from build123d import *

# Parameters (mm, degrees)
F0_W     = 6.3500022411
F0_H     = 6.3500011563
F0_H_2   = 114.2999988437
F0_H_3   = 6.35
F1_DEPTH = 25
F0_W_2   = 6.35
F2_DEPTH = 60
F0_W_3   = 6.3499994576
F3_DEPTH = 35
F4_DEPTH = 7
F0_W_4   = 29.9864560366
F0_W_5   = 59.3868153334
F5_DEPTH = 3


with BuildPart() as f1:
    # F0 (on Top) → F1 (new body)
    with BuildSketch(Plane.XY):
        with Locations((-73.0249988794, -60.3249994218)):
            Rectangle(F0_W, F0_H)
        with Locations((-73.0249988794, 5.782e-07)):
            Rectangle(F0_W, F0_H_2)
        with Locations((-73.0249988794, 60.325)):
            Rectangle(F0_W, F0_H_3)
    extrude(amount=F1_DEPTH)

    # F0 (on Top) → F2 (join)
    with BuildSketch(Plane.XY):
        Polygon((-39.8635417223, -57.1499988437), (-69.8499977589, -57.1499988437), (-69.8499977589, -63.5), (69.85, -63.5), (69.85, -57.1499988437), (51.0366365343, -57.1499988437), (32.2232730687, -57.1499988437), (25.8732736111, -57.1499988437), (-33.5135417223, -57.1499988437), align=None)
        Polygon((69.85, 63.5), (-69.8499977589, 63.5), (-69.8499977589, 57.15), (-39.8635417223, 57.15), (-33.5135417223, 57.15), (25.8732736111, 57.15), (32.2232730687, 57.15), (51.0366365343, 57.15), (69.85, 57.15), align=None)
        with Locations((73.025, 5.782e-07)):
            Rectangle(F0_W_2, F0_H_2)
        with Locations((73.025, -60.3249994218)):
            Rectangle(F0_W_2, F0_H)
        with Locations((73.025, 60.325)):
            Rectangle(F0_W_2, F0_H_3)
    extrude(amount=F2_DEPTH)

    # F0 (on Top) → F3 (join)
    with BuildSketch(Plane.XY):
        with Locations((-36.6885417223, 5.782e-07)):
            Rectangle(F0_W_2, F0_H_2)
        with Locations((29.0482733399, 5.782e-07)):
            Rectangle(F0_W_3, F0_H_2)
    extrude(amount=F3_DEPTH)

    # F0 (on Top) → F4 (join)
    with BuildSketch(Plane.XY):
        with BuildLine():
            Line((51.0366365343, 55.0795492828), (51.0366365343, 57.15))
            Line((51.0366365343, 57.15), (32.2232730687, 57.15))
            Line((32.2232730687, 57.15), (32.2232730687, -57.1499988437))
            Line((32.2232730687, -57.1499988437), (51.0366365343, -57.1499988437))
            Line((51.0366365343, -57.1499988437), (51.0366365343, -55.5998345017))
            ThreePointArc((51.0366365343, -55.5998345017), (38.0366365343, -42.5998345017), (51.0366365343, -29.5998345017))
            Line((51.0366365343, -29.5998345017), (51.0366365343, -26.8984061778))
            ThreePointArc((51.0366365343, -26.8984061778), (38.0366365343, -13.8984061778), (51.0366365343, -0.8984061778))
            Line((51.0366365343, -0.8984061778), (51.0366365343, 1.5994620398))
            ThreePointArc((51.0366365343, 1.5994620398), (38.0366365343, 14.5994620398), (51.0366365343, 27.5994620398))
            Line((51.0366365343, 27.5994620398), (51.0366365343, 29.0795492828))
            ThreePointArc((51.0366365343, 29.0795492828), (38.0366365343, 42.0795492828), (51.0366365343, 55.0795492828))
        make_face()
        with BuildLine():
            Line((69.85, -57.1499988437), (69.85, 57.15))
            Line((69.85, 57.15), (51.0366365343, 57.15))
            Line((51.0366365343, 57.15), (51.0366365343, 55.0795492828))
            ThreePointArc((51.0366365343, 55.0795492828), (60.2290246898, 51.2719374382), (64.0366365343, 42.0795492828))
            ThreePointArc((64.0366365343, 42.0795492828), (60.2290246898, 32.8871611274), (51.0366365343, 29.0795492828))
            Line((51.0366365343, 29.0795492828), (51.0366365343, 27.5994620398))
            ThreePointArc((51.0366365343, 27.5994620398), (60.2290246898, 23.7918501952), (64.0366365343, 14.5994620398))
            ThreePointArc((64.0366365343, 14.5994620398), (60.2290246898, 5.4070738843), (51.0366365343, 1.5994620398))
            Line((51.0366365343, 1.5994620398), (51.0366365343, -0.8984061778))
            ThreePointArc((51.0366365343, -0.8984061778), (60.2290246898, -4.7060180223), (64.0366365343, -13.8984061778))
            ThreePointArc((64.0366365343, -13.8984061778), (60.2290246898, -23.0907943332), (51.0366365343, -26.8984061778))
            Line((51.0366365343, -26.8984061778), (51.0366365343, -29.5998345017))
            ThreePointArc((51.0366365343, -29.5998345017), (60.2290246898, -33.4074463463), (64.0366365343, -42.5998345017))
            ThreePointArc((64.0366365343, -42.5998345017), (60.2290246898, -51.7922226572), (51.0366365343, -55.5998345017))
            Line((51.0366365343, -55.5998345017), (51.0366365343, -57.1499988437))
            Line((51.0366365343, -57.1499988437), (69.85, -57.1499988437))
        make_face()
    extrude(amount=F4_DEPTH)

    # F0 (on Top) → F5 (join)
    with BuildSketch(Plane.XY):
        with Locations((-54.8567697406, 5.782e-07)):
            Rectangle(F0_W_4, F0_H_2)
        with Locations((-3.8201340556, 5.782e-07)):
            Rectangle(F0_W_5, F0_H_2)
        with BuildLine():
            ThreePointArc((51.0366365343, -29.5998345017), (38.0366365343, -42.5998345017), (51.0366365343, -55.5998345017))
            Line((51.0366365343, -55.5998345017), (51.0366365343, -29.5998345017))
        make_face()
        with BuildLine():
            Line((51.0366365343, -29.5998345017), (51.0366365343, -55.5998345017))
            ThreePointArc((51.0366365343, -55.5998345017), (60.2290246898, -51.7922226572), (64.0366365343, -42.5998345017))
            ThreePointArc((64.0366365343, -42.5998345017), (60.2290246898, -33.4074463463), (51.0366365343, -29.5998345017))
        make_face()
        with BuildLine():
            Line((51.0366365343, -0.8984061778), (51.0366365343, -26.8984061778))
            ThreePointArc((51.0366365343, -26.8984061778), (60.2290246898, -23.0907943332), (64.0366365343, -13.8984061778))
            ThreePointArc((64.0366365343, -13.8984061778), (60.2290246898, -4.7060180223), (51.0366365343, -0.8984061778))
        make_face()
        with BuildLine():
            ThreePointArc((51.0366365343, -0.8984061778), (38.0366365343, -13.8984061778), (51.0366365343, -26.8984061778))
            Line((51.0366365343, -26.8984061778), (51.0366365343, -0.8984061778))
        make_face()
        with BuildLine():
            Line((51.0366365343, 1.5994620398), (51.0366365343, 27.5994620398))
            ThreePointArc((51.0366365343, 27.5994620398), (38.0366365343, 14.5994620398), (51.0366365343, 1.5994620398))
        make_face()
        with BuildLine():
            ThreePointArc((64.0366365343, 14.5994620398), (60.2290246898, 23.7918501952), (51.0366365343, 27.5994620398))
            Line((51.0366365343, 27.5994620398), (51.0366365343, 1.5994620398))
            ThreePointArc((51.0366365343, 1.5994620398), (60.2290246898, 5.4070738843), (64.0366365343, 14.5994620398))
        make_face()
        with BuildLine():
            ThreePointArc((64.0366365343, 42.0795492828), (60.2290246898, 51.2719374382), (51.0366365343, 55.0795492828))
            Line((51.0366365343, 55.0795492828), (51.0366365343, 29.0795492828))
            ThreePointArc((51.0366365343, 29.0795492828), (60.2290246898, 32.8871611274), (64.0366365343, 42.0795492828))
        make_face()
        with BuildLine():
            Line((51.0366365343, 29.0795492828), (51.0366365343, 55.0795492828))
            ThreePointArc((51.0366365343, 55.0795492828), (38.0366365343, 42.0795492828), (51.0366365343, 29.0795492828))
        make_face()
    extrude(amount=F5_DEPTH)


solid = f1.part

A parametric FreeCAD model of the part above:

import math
import FreeCAD as App
import Part
import Sketcher
from FreeCAD import Vector
Q = App.Units.Quantity

doc = App.newDocument("Part")
body = doc.addObject("PartDesign::Body", "Body")

sketch1 = body.newObject("Sketcher::SketchObject", "Sketch")
sketch1.AttachmentSupport = (doc.getObject("XY_Plane"), [""])
sketch1.MapMode = "FlatFace"
sketch1.addGeometry(Part.LineSegment(Vector(-76.2, -63.5, 0), Vector(-69.849998, -63.5, 0)), False)
sketch1.addGeometry(Part.LineSegment(Vector(-69.849998, -63.5, 0), Vector(-69.849998, 63.5, 0)), False)
sketch1.addGeometry(Part.LineSegment(Vector(-69.849998, 63.5, 0), Vector(-76.2, 63.5, 0)), False)
sketch1.addGeometry(Part.LineSegment(Vector(-76.2, 63.5, 0), Vector(-76.2, -63.5, 0)), False)
sketch1.addConstraint(Sketcher.Constraint("Coincident", 0, 2, 1, 1))
sketch1.addConstraint(Sketcher.Constraint("Coincident", 1, 2, 2, 1))
sketch1.addConstraint(Sketcher.Constraint("Coincident", 2, 2, 3, 1))
sketch1.addConstraint(Sketcher.Constraint("Coincident", 3, 2, 0, 1))
sketch1.addConstraint(Sketcher.Constraint("Horizontal", 0))
sketch1.addConstraint(Sketcher.Constraint("Vertical", 1))
sketch1.addConstraint(Sketcher.Constraint("Horizontal", 2))
sketch1.addConstraint(Sketcher.Constraint("Vertical", 3))
sketch1.addConstraint(Sketcher.Constraint("DistanceY", 1, 1, 1, 2, Q("5 in")))
sketch1.addConstraint(Sketcher.Constraint("DistanceX", 2, 2, -1, 1, Q("3 in")))
sketch1.addConstraint(Sketcher.Constraint("DistanceX", 0, 1, 0, 2, Q("0.2500001 in")))
sketch1.addConstraint(Sketcher.Constraint("DistanceY", 0, 2, -1, 1, Q("2.5 in")))
pad1 = body.newObject("PartDesign::Pad", "Pad")
pad1.Profile = sketch1
pad1.Length = 25

sketch2 = body.newObject("Sketcher::SketchObject", "Sketch001")
sketch2.AttachmentSupport = (doc.getObject("XY_Plane"), [""])
sketch2.MapMode = "FlatFace"
sketch2.addGeometry(Part.LineSegment(Vector(-69.849998, -57.149999, 0), Vector(-69.849998, -63.5, 0)), False)
sketch2.addGeometry(Part.LineSegment(Vector(-69.849998, -63.5, 0), Vector(76.2, -63.5, 0)), False)
sketch2.addGeometry(Part.LineSegment(Vector(76.2, -63.5, 0), Vector(76.2, 63.5, 0)), False)
sketch2.addGeometry(Part.LineSegment(Vector(76.2, 63.5, 0), Vector(-69.849998, 63.5, 0)), False)
sketch2.addGeometry(Part.LineSegment(Vector(-69.849998, 63.5, 0), Vector(-69.849998, 57.15, 0)), False)
sketch2.addGeometry(Part.LineSegment(Vector(-69.849998, 57.15, 0), Vector(69.85, 57.15, 0)), False)
sketch2.addGeometry(Part.LineSegment(Vector(69.85, 57.15, 0), Vector(69.85, -57.149999, 0)), False)
sketch2.addGeometry(Part.LineSegment(Vector(69.85, -57.149999, 0), Vector(-69.849998, -57.149999, 0)), False)
sketch2.addConstraint(Sketcher.Constraint("Coincident", 0, 2, 1, 1))
sketch2.addConstraint(Sketcher.Constraint("Coincident", 1, 2, 2, 1))
sketch2.addConstraint(Sketcher.Constraint("Coincident", 2, 2, 3, 1))
sketch2.addConstraint(Sketcher.Constraint("Coincident", 3, 2, 4, 1))
sketch2.addConstraint(Sketcher.Constraint("Coincident", 4, 2, 5, 1))
sketch2.addConstraint(Sketcher.Constraint("Coincident", 5, 2, 6, 1))
sketch2.addConstraint(Sketcher.Constraint("Coincident", 6, 2, 7, 1))
sketch2.addConstraint(Sketcher.Constraint("Coincident", 7, 2, 0, 1))
sketch2.addConstraint(Sketcher.Constraint("Vertical", 0))
sketch2.addConstraint(Sketcher.Constraint("Horizontal", 1))
sketch2.addConstraint(Sketcher.Constraint("Vertical", 2))
sketch2.addConstraint(Sketcher.Constraint("Horizontal", 3))
sketch2.addConstraint(Sketcher.Constraint("Vertical", 4))
sketch2.addConstraint(Sketcher.Constraint("Horizontal", 5))
sketch2.addConstraint(Sketcher.Constraint("Vertical", 6))
sketch2.addConstraint(Sketcher.Constraint("Horizontal", 7))
sketch2.addConstraint(Sketcher.Constraint("Symmetric", 4, 2, 6, 2, -1, 1))
sketch2.addConstraint(Sketcher.Constraint("Symmetric", 0, 2, 3, 2, -1))
sketch2.addConstraint(Sketcher.Constraint("DistanceY", 2, 1, 2, 2, Q("5 in")))
sketch2.addConstraint(Sketcher.Constraint("DistanceX", 5, 1, 5, 2, Q("5.4999999 in")))
sketch2.addConstraint(Sketcher.Constraint("DistanceY", 6, 2, 6, 1, Q("4.5 in")))
sketch2.addConstraint(Sketcher.Constraint("DistanceX", -1, 1, 1, 2, Q("3 in")))
pad2 = body.newObject("PartDesign::Pad", "Pad001")
pad2.Profile = sketch2
pad2.Length = 60

sketch3 = body.newObject("Sketcher::SketchObject", "Sketch002")
sketch3.AttachmentSupport = (doc.getObject("XY_Plane"), [""])
sketch3.MapMode = "FlatFace"
sketch3.addGeometry(Part.LineSegment(Vector(-39.863542, 57.15, 0), Vector(-39.863542, -57.149999, 0)), False)
sketch3.addGeometry(Part.LineSegment(Vector(-39.863542, -57.149999, 0), Vector(-33.513542, -57.149999, 0)), False)
sketch3.addGeometry(Part.LineSegment(Vector(-33.513542, -57.149999, 0), Vector(-33.513542, 57.15, 0)), False)
sketch3.addGeometry(Part.LineSegment(Vector(-33.513542, 57.15, 0), Vector(-39.863542, 57.15, 0)), False)
sketch3.addGeometry(Part.LineSegment(Vector(25.873274, 57.15, 0), Vector(25.873274, -57.149999, 0)), False)
sketch3.addGeometry(Part.LineSegment(Vector(25.873274, -57.149999, 0), Vector(32.223273, -57.149999, 0)), False)
sketch3.addGeometry(Part.LineSegment(Vector(32.223273, -57.149999, 0), Vector(32.223273, 57.15, 0)), False)
sketch3.addGeometry(Part.LineSegment(Vector(32.223273, 57.15, 0), Vector(25.873274, 57.15, 0)), False)
sketch3.addConstraint(Sketcher.Constraint("Coincident", 0, 2, 1, 1))
sketch3.addConstraint(Sketcher.Constraint("Coincident", 1, 2, 2, 1))
sketch3.addConstraint(Sketcher.Constraint("Coincident", 2, 2, 3, 1))
sketch3.addConstraint(Sketcher.Constraint("Coincident", 3, 2, 0, 1))
sketch3.addConstraint(Sketcher.Constraint("Coincident", 4, 2, 5, 1))
sketch3.addConstraint(Sketcher.Constraint("Coincident", 5, 2, 6, 1))
sketch3.addConstraint(Sketcher.Constraint("Coincident", 6, 2, 7, 1))
sketch3.addConstraint(Sketcher.Constraint("Coincident", 7, 2, 4, 1))
sketch3.addConstraint(Sketcher.Constraint("Vertical", 0))
sketch3.addConstraint(Sketcher.Constraint("Horizontal", 1))
sketch3.addConstraint(Sketcher.Constraint("Vertical", 2))
sketch3.addConstraint(Sketcher.Constraint("Horizontal", 3))
sketch3.addConstraint(Sketcher.Constraint("Vertical", 4))
sketch3.addConstraint(Sketcher.Constraint("Horizontal", 5))
sketch3.addConstraint(Sketcher.Constraint("Vertical", 6))
sketch3.addConstraint(Sketcher.Constraint("Horizontal", 7))
sketch3.addConstraint(Sketcher.Constraint("Horizontal", 1, 2, 4, 2))
sketch3.addConstraint(Sketcher.Constraint("Horizontal", 3, 2, 6, 2))
sketch3.addConstraint(Sketcher.Constraint("Equal", 3, 5))
sketch3.addConstraint(Sketcher.Constraint("DistanceY", 0, 2, 0, 1, Q("4.5 in")))
sketch3.addConstraint(Sketcher.Constraint("DistanceX", 1, 1, 1, 2, Q("0.25 in")))
sketch3.addConstraint(Sketcher.Constraint("DistanceY", 0, 2, -1, 1, Q("2.25 in")))
sketch3.addConstraint(Sketcher.Constraint("DistanceX", 0, 2, -1, 1, 39.863542))
sketch3.addConstraint(Sketcher.Constraint("DistanceX", -1, 1, 4, 2, 25.873274))
pad3 = body.newObject("PartDesign::Pad", "Pad002")
pad3.Profile = sketch3
pad3.Length = 35

sketch4 = body.newObject("Sketcher::SketchObject", "Sketch003")
sketch4.AttachmentSupport = (doc.getObject("XY_Plane"), [""])
sketch4.MapMode = "FlatFace"
sketch4.addGeometry(Part.LineSegment(Vector(32.223273, 57.15, 0), Vector(32.223273, -57.149999, 0)), False)
sketch4.addGeometry(Part.LineSegment(Vector(32.223273, -57.149999, 0), Vector(69.85, -57.149999, 0)), False)
sketch4.addGeometry(Part.LineSegment(Vector(69.85, -57.149999, 0), Vector(69.85, 57.15, 0)), False)
sketch4.addGeometry(Part.LineSegment(Vector(69.85, 57.15, 0), Vector(32.223273, 57.15, 0)), False)
sketch4.addGeometry(Part.ArcOfCircle(Part.Circle(Vector(51.036637, -42.599835, 0), Vector(0, 0, 1), 13), math.radians(90), math.radians(270)), False)
sketch4.addGeometry(Part.ArcOfCircle(Part.Circle(Vector(51.036637, -42.599835, 0), Vector(0, 0, 1), 13), math.radians(0), math.radians(90)), False)
sketch4.addGeometry(Part.ArcOfCircle(Part.Circle(Vector(51.036637, -42.599835, 0), Vector(0, 0, 1), 13), math.radians(-90), math.radians(0)), False)
sketch4.addGeometry(Part.ArcOfCircle(Part.Circle(Vector(51.036637, -13.898406, 0), Vector(0, 0, 1), 13), math.radians(90), math.radians(270)), False)
sketch4.addGeometry(Part.ArcOfCircle(Part.Circle(Vector(51.036637, -13.898406, 0), Vector(0, 0, 1), 13), math.radians(0), math.radians(90)), False)
sketch4.addGeometry(Part.ArcOfCircle(Part.Circle(Vector(51.036637, -13.898406, 0), Vector(0, 0, 1), 13), math.radians(-90), math.radians(0)), False)
sketch4.addGeometry(Part.ArcOfCircle(Part.Circle(Vector(51.036637, 14.599462, 0), Vector(0, 0, 1), 13), math.radians(90), math.radians(270)), False)
sketch4.addGeometry(Part.ArcOfCircle(Part.Circle(Vector(51.036637, 14.599462, 0), Vector(0, 0, 1), 13), math.radians(0), math.radians(90)), False)
sketch4.addGeometry(Part.ArcOfCircle(Part.Circle(Vector(51.036637, 14.599462, 0), Vector(0, 0, 1), 13), math.radians(-90), math.radians(0)), False)
sketch4.addGeometry(Part.ArcOfCircle(Part.Circle(Vector(51.036637, 42.079549, 0), Vector(0, 0, 1), 13), math.radians(90), math.radians(270)), False)
sketch4.addGeometry(Part.ArcOfCircle(Part.Circle(Vector(51.036637, 42.079549, 0), Vector(0, 0, 1), 13), math.radians(0), math.radians(90)), False)
sketch4.addGeometry(Part.ArcOfCircle(Part.Circle(Vector(51.036637, 42.079549, 0), Vector(0, 0, 1), 13), math.radians(-90), math.radians(0)), False)
sketch4.addConstraint(Sketcher.Constraint("Coincident", 0, 2, 1, 1))
sketch4.addConstraint(Sketcher.Constraint("Coincident", 1, 2, 2, 1))
sketch4.addConstraint(Sketcher.Constraint("Coincident", 2, 2, 3, 1))
sketch4.addConstraint(Sketcher.Constraint("Coincident", 3, 2, 0, 1))
sketch4.addConstraint(Sketcher.Constraint("Tangent", 4, 1, 5, 2))
sketch4.addConstraint(Sketcher.Constraint("Tangent", 5, 1, 6, 2))
sketch4.addConstraint(Sketcher.Constraint("Tangent", 6, 1, 4, 2))
sketch4.addConstraint(Sketcher.Constraint("Tangent", 7, 1, 8, 2))
sketch4.addConstraint(Sketcher.Constraint("Tangent", 8, 1, 9, 2))
sketch4.addConstraint(Sketcher.Constraint("Tangent", 9, 1, 7, 2))
sketch4.addConstraint(Sketcher.Constraint("Tangent", 10, 1, 11, 2))
sketch4.addConstraint(Sketcher.Constraint("Tangent", 11, 1, 12, 2))
sketch4.addConstraint(Sketcher.Constraint("Tangent", 12, 1, 10, 2))
sketch4.addConstraint(Sketcher.Constraint("Tangent", 13, 1, 14, 2))
sketch4.addConstraint(Sketcher.Constraint("Tangent", 14, 1, 15, 2))
sketch4.addConstraint(Sketcher.Constraint("Tangent", 15, 1, 13, 2))
sketch4.addConstraint(Sketcher.Constraint("Vertical", 0))
sketch4.addConstraint(Sketcher.Constraint("Horizontal", 1))
sketch4.addConstraint(Sketcher.Constraint("Vertical", 2))
sketch4.addConstraint(Sketcher.Constraint("Horizontal", 3))
sketch4.addConstraint(Sketcher.Constraint("Equal", 6, 7))
sketch4.addConstraint(Sketcher.Constraint("Equal", 9, 10))
sketch4.addConstraint(Sketcher.Constraint("Equal", 12, 13))
sketch4.addConstraint(Sketcher.Constraint("Horizontal", 6, 3, 5, 1))
sketch4.addConstraint(Sketcher.Constraint("Horizontal", 9, 3, 8, 1))
sketch4.addConstraint(Sketcher.Constraint("Horizontal", 12, 3, 11, 1))
sketch4.addConstraint(Sketcher.Constraint("Horizontal", 15, 3, 14, 1))
sketch4.addConstraint(Sketcher.Constraint("Vertical", 6, 3, 7, 3))
sketch4.addConstraint(Sketcher.Constraint("Vertical", 9, 3, 10, 3))
sketch4.addConstraint(Sketcher.Constraint("Vertical", 12, 3, 13, 3))
sketch4.addConstraint(Sketcher.Constraint("Vertical", 15, 3, 4, 1))
sketch4.addConstraint(Sketcher.Constraint("Vertical", 4, 1, 6, 1))
sketch4.addConstraint(Sketcher.Constraint("Vertical", 6, 1, 7, 1))
sketch4.addConstraint(Sketcher.Constraint("Vertical", 7, 1, 9, 1))
sketch4.addConstraint(Sketcher.Constraint("Vertical", 9, 1, 10, 1))
sketch4.addConstraint(Sketcher.Constraint("Vertical", 10, 1, 12, 1))
sketch4.addConstraint(Sketcher.Constraint("Vertical", 12, 1, 13, 1))
sketch4.addConstraint(Sketcher.Constraint("Vertical", 13, 1, 15, 1))
sketch4.addConstraint(Sketcher.Constraint("DistanceY", 0, 2, 0, 1, Q("4.5 in")))
sketch4.addConstraint(Sketcher.Constraint("DistanceY", 0, 2, -1, 1, Q("2.25 in")))
sketch4.addConstraint(Sketcher.Constraint("DistanceX", -1, 1, 1, 2, Q("2.75 in")))
sketch4.addConstraint(Sketcher.Constraint("Radius", 4, 13.0))
sketch4.addConstraint(Sketcher.Constraint("DistanceX", 1, 1, 1, 2, 37.626727))
sketch4.addConstraint(Sketcher.Constraint("DistanceY", -1, 1, 13, 3, 42.079549))
sketch4.addConstraint(Sketcher.Constraint("DistanceY", 4, 3, 7, 3, 28.701428))
sketch4.addConstraint(Sketcher.Constraint("DistanceY", 7, 3, 10, 3, 28.497868))
sketch4.addConstraint(Sketcher.Constraint("DistanceX", -1, 1, 4, 3, 51.036637))
sketch4.addConstraint(Sketcher.Constraint("DistanceY", 4, 3, -1, 1, 42.599835))
pad4 = body.newObject("PartDesign::Pad", "Pad003")
pad4.Profile = sketch4
pad4.Length = 7

sketch5 = body.newObject("Sketcher::SketchObject", "Sketch004")
sketch5.AttachmentSupport = (doc.getObject("XY_Plane"), [""])
sketch5.MapMode = "FlatFace"
sketch5.addGeometry(Part.LineSegment(Vector(-69.849998, 57.15, 0), Vector(-69.849998, -57.149999, 0)), False)
sketch5.addGeometry(Part.LineSegment(Vector(-69.849998, -57.149999, 0), Vector(-39.863542, -57.149999, 0)), False)
sketch5.addGeometry(Part.LineSegment(Vector(-39.863542, -57.149999, 0), Vector(-39.863542, 57.15, 0)), False)
sketch5.addGeometry(Part.LineSegment(Vector(-39.863542, 57.15, 0), Vector(-69.849998, 57.15, 0)), False)
sketch5.addGeometry(Part.LineSegment(Vector(-33.513542, 57.15, 0), Vector(-33.513542, -57.149999, 0)), False)
sketch5.addGeometry(Part.LineSegment(Vector(-33.513542, -57.149999, 0), Vector(25.873274, -57.149999, 0)), False)
sketch5.addGeometry(Part.LineSegment(Vector(25.873274, -57.149999, 0), Vector(25.873274, 57.15, 0)), False)
sketch5.addGeometry(Part.LineSegment(Vector(25.873274, 57.15, 0), Vector(-33.513542, 57.15, 0)), False)
sketch5.addGeometry(Part.ArcOfCircle(Part.Circle(Vector(51.036637, -42.599835, 0), Vector(0, 0, 1), 13), math.radians(90), math.radians(270)), False)
sketch5.addGeometry(Part.ArcOfCircle(Part.Circle(Vector(51.036637, -42.599835, 0), Vector(0, 0, 1), 13), math.radians(-90), math.radians(0)), False)
sketch5.addGeometry(Part.ArcOfCircle(Part.Circle(Vector(51.036637, -42.599835, 0), Vector(0, 0, 1), 13), math.radians(0), math.radians(90)), False)
sketch5.addGeometry(Part.ArcOfCircle(Part.Circle(Vector(51.036637, -13.898406, 0), Vector(0, 0, 1), 13), math.radians(-90), math.radians(0)), False)
sketch5.addGeometry(Part.ArcOfCircle(Part.Circle(Vector(51.036637, -13.898406, 0), Vector(0, 0, 1), 13), math.radians(0), math.radians(90)), False)
sketch5.addGeometry(Part.ArcOfCircle(Part.Circle(Vector(51.036637, -13.898406, 0), Vector(0, 0, 1), 13), math.radians(90), math.radians(270)), False)
sketch5.addGeometry(Part.ArcOfCircle(Part.Circle(Vector(51.036637, 14.599462, 0), Vector(0, 0, 1), 13), math.radians(90), math.radians(270)), False)
sketch5.addGeometry(Part.ArcOfCircle(Part.Circle(Vector(51.036637, 14.599462, 0), Vector(0, 0, 1), 13), math.radians(-90), math.radians(0)), False)
sketch5.addGeometry(Part.ArcOfCircle(Part.Circle(Vector(51.036637, 14.599462, 0), Vector(0, 0, 1), 13), math.radians(0), math.radians(90)), False)
sketch5.addGeometry(Part.ArcOfCircle(Part.Circle(Vector(51.036637, 42.079549, 0), Vector(0, 0, 1), 13), math.radians(0), math.radians(90)), False)
sketch5.addGeometry(Part.ArcOfCircle(Part.Circle(Vector(51.036637, 42.079549, 0), Vector(0, 0, 1), 13), math.radians(90), math.radians(270)), False)
sketch5.addGeometry(Part.ArcOfCircle(Part.Circle(Vector(51.036637, 42.079549, 0), Vector(0, 0, 1), 13), math.radians(-90), math.radians(0)), False)
sketch5.addConstraint(Sketcher.Constraint("Coincident", 0, 2, 1, 1))
sketch5.addConstraint(Sketcher.Constraint("Coincident", 1, 2, 2, 1))
sketch5.addConstraint(Sketcher.Constraint("Coincident", 2, 2, 3, 1))
sketch5.addConstraint(Sketcher.Constraint("Coincident", 3, 2, 0, 1))
sketch5.addConstraint(Sketcher.Constraint("Coincident", 4, 2, 5, 1))
sketch5.addConstraint(Sketcher.Constraint("Coincident", 5, 2, 6, 1))
sketch5.addConstraint(Sketcher.Constraint("Coincident", 6, 2, 7, 1))
sketch5.addConstraint(Sketcher.Constraint("Coincident", 7, 2, 4, 1))
sketch5.addConstraint(Sketcher.Constraint("Tangent", 8, 2, 9, 1))
sketch5.addConstraint(Sketcher.Constraint("Tangent", 9, 2, 10, 1))
sketch5.addConstraint(Sketcher.Constraint("Tangent", 10, 2, 8, 1))
sketch5.addConstraint(Sketcher.Constraint("Tangent", 11, 2, 12, 1))
sketch5.addConstraint(Sketcher.Constraint("Tangent", 12, 2, 13, 1))
sketch5.addConstraint(Sketcher.Constraint("Tangent", 13, 2, 11, 1))
sketch5.addConstraint(Sketcher.Constraint("Tangent", 14, 2, 15, 1))
sketch5.addConstraint(Sketcher.Constraint("Tangent", 15, 2, 16, 1))
sketch5.addConstraint(Sketcher.Constraint("Tangent", 16, 2, 14, 1))
sketch5.addConstraint(Sketcher.Constraint("Tangent", 17, 2, 18, 1))
sketch5.addConstraint(Sketcher.Constraint("Tangent", 18, 2, 19, 1))
sketch5.addConstraint(Sketcher.Constraint("Tangent", 19, 2, 17, 1))
sketch5.addConstraint(Sketcher.Constraint("Vertical", 0))
sketch5.addConstraint(Sketcher.Constraint("Horizontal", 1))
sketch5.addConstraint(Sketcher.Constraint("Vertical", 2))
sketch5.addConstraint(Sketcher.Constraint("Horizontal", 3))
sketch5.addConstraint(Sketcher.Constraint("Vertical", 4))
sketch5.addConstraint(Sketcher.Constraint("Horizontal", 5))
sketch5.addConstraint(Sketcher.Constraint("Vertical", 6))
sketch5.addConstraint(Sketcher.Constraint("Horizontal", 7))
sketch5.addConstraint(Sketcher.Constraint("Equal", 10, 11))
sketch5.addConstraint(Sketcher.Constraint("Equal", 13, 14))
sketch5.addConstraint(Sketcher.Constraint("Equal", 16, 17))
sketch5.addConstraint(Sketcher.Constraint("Horizontal", 1, 2, 4, 2))
sketch5.addConstraint(Sketcher.Constraint("Horizontal", 3, 2, 6, 2))
sketch5.addConstraint(Sketcher.Constraint("Horizontal", 10, 3, 9, 2))
sketch5.addConstraint(Sketcher.Constraint("Horizontal", 13, 3, 11, 2))
sketch5.addConstraint(Sketcher.Constraint("Horizontal", 16, 3, 15, 2))
sketch5.addConstraint(Sketcher.Constraint("Horizontal", 18, 3, 19, 2))
sketch5.addConstraint(Sketcher.Constraint("Vertical", 10, 3, 11, 3))
sketch5.addConstraint(Sketcher.Constraint("Vertical", 13, 3, 14, 3))
sketch5.addConstraint(Sketcher.Constraint("Vertical", 16, 3, 17, 3))
sketch5.addConstraint(Sketcher.Constraint("Vertical", 19, 3, 8, 2))
sketch5.addConstraint(Sketcher.Constraint("Vertical", 8, 2, 10, 2))
sketch5.addConstraint(Sketcher.Constraint("Vertical", 10, 2, 12, 2))
sketch5.addConstraint(Sketcher.Constraint("Vertical", 12, 2, 13, 2))
sketch5.addConstraint(Sketcher.Constraint("Vertical", 13, 2, 14, 2))
sketch5.addConstraint(Sketcher.Constraint("Vertical", 14, 2, 16, 2))
sketch5.addConstraint(Sketcher.Constraint("Vertical", 16, 2, 17, 2))
sketch5.addConstraint(Sketcher.Constraint("Vertical", 17, 2, 18, 2))
sketch5.addConstraint(Sketcher.Constraint("DistanceY", 0, 2, 0, 1, Q("4.5 in")))
sketch5.addConstraint(Sketcher.Constraint("DistanceX", 0, 2, -1, 1, Q("2.7499999 in")))
sketch5.addConstraint(Sketcher.Constraint("DistanceY", 0, 2, -1, 1, Q("2.25 in")))
sketch5.addConstraint(Sketcher.Constraint("Radius", 8, 13.0))
sketch5.addConstraint(Sketcher.Constraint("DistanceX", 1, 2, 4, 2, Q("0.25 in")))
sketch5.addConstraint(Sketcher.Constraint("DistanceX", 1, 1, 1, 2, 29.986456))
sketch5.addConstraint(Sketcher.Constraint("DistanceX", 5, 1, 5, 2, 59.386815))
sketch5.addConstraint(Sketcher.Constraint("DistanceY", -1, 1, 17, 3, 42.079549))
sketch5.addConstraint(Sketcher.Constraint("DistanceY", 8, 3, 11, 3, 28.701428))
sketch5.addConstraint(Sketcher.Constraint("DistanceY", 11, 3, 14, 3, 28.497868))
sketch5.addConstraint(Sketcher.Constraint("DistanceX", 1, 2, 8, 3, 90.900178))
sketch5.addConstraint(Sketcher.Constraint("DistanceY", 8, 3, -1, 1, 42.599835))
pad5 = body.newObject("PartDesign::Pad", "Pad004")
pad5.Profile = sketch5
pad5.Length = 3

doc.recompute()
